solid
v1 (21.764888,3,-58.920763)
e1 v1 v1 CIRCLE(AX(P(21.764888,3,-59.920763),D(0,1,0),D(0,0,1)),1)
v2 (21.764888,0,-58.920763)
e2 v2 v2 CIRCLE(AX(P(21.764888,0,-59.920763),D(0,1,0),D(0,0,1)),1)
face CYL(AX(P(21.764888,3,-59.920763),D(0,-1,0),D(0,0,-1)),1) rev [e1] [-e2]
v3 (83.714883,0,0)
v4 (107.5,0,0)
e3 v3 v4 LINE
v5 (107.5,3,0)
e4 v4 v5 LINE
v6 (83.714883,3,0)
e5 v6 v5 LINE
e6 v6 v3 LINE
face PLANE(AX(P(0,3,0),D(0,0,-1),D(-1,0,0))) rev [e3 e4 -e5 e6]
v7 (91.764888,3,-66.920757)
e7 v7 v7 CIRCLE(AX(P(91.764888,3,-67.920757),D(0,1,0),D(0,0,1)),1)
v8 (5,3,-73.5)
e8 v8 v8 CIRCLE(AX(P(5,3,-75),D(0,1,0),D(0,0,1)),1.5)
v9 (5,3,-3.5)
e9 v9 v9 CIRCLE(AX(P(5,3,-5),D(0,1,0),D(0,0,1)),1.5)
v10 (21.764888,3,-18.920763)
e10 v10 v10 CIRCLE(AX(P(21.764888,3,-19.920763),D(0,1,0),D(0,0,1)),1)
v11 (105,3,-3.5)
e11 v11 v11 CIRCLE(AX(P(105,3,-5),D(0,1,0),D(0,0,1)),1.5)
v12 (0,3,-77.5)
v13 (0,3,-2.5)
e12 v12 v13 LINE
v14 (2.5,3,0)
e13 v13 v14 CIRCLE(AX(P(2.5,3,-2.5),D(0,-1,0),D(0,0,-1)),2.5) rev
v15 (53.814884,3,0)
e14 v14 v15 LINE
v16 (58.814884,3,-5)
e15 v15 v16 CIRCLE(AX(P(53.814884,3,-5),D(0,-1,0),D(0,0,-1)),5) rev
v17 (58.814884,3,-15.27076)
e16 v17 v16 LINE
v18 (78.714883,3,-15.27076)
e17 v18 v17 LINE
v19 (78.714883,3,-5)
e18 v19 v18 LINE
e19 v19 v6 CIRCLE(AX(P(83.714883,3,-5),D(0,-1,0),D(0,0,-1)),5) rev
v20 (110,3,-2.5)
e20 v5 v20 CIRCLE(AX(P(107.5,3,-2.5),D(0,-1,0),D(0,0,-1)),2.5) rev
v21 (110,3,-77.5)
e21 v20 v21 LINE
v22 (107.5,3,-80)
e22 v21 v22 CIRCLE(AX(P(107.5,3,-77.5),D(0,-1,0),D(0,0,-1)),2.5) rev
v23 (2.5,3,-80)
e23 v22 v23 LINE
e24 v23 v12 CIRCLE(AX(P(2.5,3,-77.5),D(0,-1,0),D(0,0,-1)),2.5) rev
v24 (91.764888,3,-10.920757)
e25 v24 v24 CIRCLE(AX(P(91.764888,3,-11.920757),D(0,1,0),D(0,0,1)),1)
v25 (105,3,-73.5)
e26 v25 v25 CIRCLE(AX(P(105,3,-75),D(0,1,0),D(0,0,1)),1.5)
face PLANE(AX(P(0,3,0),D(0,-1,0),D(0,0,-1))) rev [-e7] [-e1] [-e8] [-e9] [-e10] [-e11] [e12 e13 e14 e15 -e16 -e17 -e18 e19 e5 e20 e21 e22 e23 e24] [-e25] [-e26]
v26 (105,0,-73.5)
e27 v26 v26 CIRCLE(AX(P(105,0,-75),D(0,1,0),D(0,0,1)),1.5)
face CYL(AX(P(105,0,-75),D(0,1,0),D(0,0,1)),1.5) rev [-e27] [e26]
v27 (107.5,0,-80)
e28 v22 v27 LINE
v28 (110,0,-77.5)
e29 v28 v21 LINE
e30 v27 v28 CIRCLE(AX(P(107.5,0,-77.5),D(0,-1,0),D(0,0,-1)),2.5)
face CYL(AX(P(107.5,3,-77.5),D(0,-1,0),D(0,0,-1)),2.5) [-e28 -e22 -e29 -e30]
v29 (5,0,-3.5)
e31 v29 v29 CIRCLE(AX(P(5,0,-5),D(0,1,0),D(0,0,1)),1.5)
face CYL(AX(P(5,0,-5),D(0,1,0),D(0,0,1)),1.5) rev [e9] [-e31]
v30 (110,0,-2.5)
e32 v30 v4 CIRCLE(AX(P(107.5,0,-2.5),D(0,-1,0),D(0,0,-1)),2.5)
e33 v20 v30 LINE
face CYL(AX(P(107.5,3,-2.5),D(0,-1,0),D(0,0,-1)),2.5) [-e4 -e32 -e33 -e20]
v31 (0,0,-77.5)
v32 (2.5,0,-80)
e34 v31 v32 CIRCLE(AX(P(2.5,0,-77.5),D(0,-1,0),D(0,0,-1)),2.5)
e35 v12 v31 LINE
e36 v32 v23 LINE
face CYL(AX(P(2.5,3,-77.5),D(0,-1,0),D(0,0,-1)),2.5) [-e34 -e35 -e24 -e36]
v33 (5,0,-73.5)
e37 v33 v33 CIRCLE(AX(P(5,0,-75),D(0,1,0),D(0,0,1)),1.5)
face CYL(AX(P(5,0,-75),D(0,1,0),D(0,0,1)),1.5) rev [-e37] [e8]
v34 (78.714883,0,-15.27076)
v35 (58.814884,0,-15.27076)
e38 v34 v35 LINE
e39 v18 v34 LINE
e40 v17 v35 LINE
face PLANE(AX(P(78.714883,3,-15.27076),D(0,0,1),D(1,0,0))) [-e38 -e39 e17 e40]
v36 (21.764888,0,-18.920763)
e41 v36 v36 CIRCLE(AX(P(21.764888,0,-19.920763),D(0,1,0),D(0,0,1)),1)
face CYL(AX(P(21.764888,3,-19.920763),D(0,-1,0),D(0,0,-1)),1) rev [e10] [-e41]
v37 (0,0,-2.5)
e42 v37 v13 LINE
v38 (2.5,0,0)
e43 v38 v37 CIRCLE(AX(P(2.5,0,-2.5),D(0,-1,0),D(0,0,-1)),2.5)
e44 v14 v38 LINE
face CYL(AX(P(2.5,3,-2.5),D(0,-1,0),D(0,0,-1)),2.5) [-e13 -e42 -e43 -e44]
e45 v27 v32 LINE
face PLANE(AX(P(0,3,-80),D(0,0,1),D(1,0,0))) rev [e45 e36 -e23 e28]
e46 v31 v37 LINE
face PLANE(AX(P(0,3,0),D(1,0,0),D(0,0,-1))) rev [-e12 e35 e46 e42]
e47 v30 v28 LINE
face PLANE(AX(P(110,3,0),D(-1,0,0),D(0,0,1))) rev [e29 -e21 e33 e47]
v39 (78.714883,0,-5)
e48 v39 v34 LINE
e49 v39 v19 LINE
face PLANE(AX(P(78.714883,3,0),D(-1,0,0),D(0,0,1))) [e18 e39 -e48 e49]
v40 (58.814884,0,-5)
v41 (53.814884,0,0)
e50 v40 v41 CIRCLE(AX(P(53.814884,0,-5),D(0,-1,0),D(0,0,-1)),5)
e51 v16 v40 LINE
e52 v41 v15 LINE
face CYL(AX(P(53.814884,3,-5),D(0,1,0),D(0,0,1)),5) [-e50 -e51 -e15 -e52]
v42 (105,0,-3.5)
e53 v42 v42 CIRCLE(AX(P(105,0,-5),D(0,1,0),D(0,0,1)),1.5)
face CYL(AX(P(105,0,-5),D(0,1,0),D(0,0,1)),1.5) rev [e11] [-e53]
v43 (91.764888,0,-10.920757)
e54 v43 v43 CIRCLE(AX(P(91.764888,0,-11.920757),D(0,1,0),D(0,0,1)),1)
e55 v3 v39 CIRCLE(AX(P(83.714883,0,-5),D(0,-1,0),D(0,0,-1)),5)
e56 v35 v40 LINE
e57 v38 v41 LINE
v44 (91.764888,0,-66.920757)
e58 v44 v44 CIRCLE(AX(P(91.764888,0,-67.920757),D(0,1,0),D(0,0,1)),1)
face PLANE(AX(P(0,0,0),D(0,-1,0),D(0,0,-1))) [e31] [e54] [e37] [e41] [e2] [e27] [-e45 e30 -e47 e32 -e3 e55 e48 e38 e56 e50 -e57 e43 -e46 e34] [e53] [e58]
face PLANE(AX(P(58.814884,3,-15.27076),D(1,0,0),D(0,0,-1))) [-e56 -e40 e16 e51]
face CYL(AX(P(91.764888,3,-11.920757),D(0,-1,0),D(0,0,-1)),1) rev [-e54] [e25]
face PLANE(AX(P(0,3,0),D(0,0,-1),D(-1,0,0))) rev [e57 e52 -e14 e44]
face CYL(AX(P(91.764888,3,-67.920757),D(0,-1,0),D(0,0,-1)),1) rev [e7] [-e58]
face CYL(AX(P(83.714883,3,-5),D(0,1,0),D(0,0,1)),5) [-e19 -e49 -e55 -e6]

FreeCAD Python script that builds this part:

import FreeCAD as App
import Part
import Sketcher


def edges_at(feature, points):
    """Names of the edges that pass closest to the given points."""
    edges = feature.Shape.Edges
    near = lambda p: min(range(len(edges)), key=lambda i: edges[i].distToShape(Part.Vertex(*p))[0])
    return sorted({f"Edge{near(p) + 1}" for p in points})

doc = App.newDocument("Part")
body = doc.addObject("PartDesign::Body", "Body")

sketch1 = doc.addObject("Sketcher::SketchObject", "Sketch")
body.addObject(sketch1)
sketch1.AttachmentSupport = (doc.XZ_Plane, [""])
sketch1.MapMode = "FlatFace"
sketch1.addGeometry([
    Part.LineSegment(App.Vector(0, -80, 0), App.Vector(0, 0, 0)),
    Part.LineSegment(App.Vector(0, 0, 0), App.Vector(110, 0, 0)),
    Part.LineSegment(App.Vector(110, 0, 0), App.Vector(110, -80, 0)),
    Part.LineSegment(App.Vector(110, -80, 0), App.Vector(0, -80, 0)),
    Part.Circle(App.Vector(21.8, -19.9, 0), App.Vector(0, 0, 1), 1),
    Part.Circle(App.Vector(91.8, -11.9, 0), App.Vector(0, 0, 1), 1),
    Part.Circle(App.Vector(21.8, -59.9, 0), App.Vector(0, 0, 1), 1),
    Part.Circle(App.Vector(91.8, -67.9, 0), App.Vector(0, 0, 1), 1),
], False)
sketch1.addConstraint([
    Sketcher.Constraint("Coincident", 0, 2, 1, 1),
    Sketcher.Constraint("Coincident", 1, 2, 2, 1),
    Sketcher.Constraint("Coincident", 2, 2, 3, 1),
    Sketcher.Constraint("Coincident", 3, 2, 0, 1),
    Sketcher.Constraint("Vertical", 0),
    Sketcher.Constraint("Horizontal", 1),
    Sketcher.Constraint("Vertical", 2),
    Sketcher.Constraint("Horizontal", 3),
    Sketcher.Constraint("Coincident", 0, 2, -1, 1),
    Sketcher.Constraint("Equal", 4, 5),
    Sketcher.Constraint("Equal", 5, 6),
    Sketcher.Constraint("Equal", 6, 7),
    Sketcher.Constraint("Vertical", 4, 3, 6, 3),
    Sketcher.Constraint("Vertical", 5, 3, 7, 3),
    Sketcher.Constraint("Diameter", 4, 2.0),
    Sketcher.Constraint("DistanceX", 1, 1, 1, 2, 110.0),
    Sketcher.Constraint("DistanceY", 0, 1, 0, 2, 80.0),
    Sketcher.Constraint("DistanceX", 4, 3, 5, 3, 69.999999),
    Sketcher.Constraint("DistanceY", 6, 3, 4, 3, 40.0),
    Sketcher.Constraint("DistanceY", 7, 3, 5, 3, 56.0),
    Sketcher.Constraint("DistanceX", -1, 1, 4, 3, 21.764888),
    Sketcher.Constraint("DistanceY", 4, 3, -1, 1, 19.920763),
    Sketcher.Constraint("DistanceY", 5, 3, -1, 1, 11.920757),
])
pad1 = doc.addObject("PartDesign::Pad", "Pad")
body.addObject(pad1)
pad1.Profile = sketch1
pad1.Length = 3
pad1.Reversed = True

sketch2 = doc.addObject("Sketcher::SketchObject", "Sketch001")
body.addObject(sketch2)
sketch2.AttachmentSupport = (doc.XZ_Plane, [""])
sketch2.MapMode = "FlatFace"
sketch2.AttachmentOffset = App.Placement(App.Vector(0, 0, -3), App.Rotation())
sketch2.addGeometry([
    Part.Circle(App.Vector(5, -75, 0), App.Vector(0, 0, 1), 1.5),
    Part.Circle(App.Vector(105, -75, 0), App.Vector(0, 0, 1), 1.5),
    Part.Circle(App.Vector(105, -5, 0), App.Vector(0, 0, 1), 1.5),
    Part.Circle(App.Vector(5, -5, 0), App.Vector(0, 0, 1), 1.5),
], False)
sketch2.addConstraint([
    Sketcher.Constraint("Equal", 0, 1),
    Sketcher.Constraint("Equal", 1, 2),
    Sketcher.Constraint("Equal", 2, 3),
    Sketcher.Constraint("Horizontal", 0, 3, 1, 3),
    Sketcher.Constraint("Horizontal", 2, 3, 3, 3),
    Sketcher.Constraint("Vertical", 1, 3, 2, 3),
    Sketcher.Constraint("Vertical", 0, 3, 3, 3),
    Sketcher.Constraint("Diameter", 0, 3.0),
    Sketcher.Constraint("DistanceX", -1, 1, 0, 3, 5.0),
    Sketcher.Constraint("DistanceY", 0, 3, -1, 1, 75.0),
    Sketcher.Constraint("DistanceX", -1, 1, 1, 3, 105.0),
    Sketcher.Constraint("DistanceY", 2, 3, -1, 1, 5.0),
])
pocket1 = doc.addObject("PartDesign::Pocket", "Pocket")
body.addObject(pocket1)
pocket1.Profile = sketch2
pocket1.Type = "ThroughAll"
pocket1.Reversed = True
doc.recompute()

fillet = doc.addObject("PartDesign::Fillet", "Fillet")
body.addObject(fillet)
fillet.Base = (pocket1, edges_at(pocket1, [
    (0, 1.5, -80),
    (110, 1.5, -80),
    (110, 1.5, 0),
    (0, 1.5, 0),
]))
fillet.Radius = 2.5

sketch3 = doc.addObject("Sketcher::SketchObject", "Sketch002")
body.addObject(sketch3)
sketch3.AttachmentSupport = (doc.XZ_Plane, [""])
sketch3.MapMode = "FlatFace"
sketch3.AttachmentOffset = App.Placement(App.Vector(0, 0, -3), App.Rotation())
sketch3.addGeometry([
    Part.LineSegment(App.Vector(79, -15, 0), App.Vector(59, -15, 0)),
    Part.LineSegment(App.Vector(59, -15, 0), App.Vector(59, 703, 0)),
    Part.LineSegment(App.Vector(59, 703, 0), App.Vector(79, 703, 0)),
    Part.LineSegment(App.Vector(79, 703, 0), App.Vector(79, -15, 0)),
], False)
sketch3.addConstraint([
    Sketcher.Constraint("Coincident", 0, 2, 1, 1),
    Sketcher.Constraint("Coincident", 1, 2, 2, 1),
    Sketcher.Constraint("Coincident", 2, 2, 3, 1),
    Sketcher.Constraint("Coincident", 3, 2, 0, 1),
    Sketcher.Constraint("Horizontal", 0),
    Sketcher.Constraint("Vertical", 1),
    Sketcher.Constraint("Horizontal", 2),
    Sketcher.Constraint("Vertical", 3),
    Sketcher.Constraint("DistanceX", 0, 2, 0, 1, 19.9),
    Sketcher.Constraint("DistanceY", 1, 1, 1, 2, 718.663056),
    Sketcher.Constraint("DistanceY", 0, 2, -1, 1, 15.27076),
    Sketcher.Constraint("DistanceX", -1, 1, 0, 2, 58.814884),
])
pocket2 = doc.addObject("PartDesign::Pocket", "Pocket001")
body.addObject(pocket2)
pocket2.Profile = sketch3
pocket2.Length = 6
pocket2.Reversed = True
doc.recompute()

fillet2 = doc.addObject("PartDesign::Fillet", "Fillet001")
body.addObject(fillet2)
fillet2.Base = (pocket2, edges_at(pocket2, [(78.715, 1.5, 0), (58.815, 1.5, 0)]))
fillet2.Radius = 5

doc.recompute()
